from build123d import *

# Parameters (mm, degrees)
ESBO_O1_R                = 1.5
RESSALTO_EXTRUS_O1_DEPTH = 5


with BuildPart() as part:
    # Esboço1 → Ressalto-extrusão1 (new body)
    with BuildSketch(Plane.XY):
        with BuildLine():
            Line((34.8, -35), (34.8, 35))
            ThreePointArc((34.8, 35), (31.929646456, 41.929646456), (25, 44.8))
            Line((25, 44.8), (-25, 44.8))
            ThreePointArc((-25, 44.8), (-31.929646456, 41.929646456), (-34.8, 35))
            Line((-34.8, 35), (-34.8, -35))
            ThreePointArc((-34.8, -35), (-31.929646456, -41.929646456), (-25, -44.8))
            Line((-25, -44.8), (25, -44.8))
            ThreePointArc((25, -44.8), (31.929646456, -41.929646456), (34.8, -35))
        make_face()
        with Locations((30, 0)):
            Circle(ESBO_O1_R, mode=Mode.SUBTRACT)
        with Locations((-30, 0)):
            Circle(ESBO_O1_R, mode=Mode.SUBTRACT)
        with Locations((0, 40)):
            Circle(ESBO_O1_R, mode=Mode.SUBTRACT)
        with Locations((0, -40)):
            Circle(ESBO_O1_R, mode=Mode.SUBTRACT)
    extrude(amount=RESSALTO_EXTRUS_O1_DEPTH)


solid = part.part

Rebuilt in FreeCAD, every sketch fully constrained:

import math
import FreeCAD as App
import Part
import Sketcher
Q = App.Units.Quantity

doc = App.newDocument("Part")
body = doc.addObject("PartDesign::Body", "Body")

sketch1 = body.newObject("Sketcher::SketchObject", "Sketch")
sketch1.AttachmentSupport = (doc.getObject("XY_Plane"), [""])
sketch1.MapMode = "FlatFace"
sketch1.addGeometry([
    Part.LineSegment(App.Vector(34.8, -35, 0), App.Vector(34.8, 35, 0)),
    Part.ArcOfCircle(Part.Circle(App.Vector(25, 35, 0), App.Vector(0, 0, 1), 9.8), math.radians(0), math.radians(90)),
    Part.LineSegment(App.Vector(25, 44.8, 0), App.Vector(-25, 44.8, 0)),
    Part.ArcOfCircle(Part.Circle(App.Vector(-25, 35, 0), App.Vector(0, 0, 1), 9.8), math.radians(90), math.radians(180)),
    Part.LineSegment(App.Vector(-34.8, 35, 0), App.Vector(-34.8, -35, 0)),
    Part.ArcOfCircle(Part.Circle(App.Vector(-25, -35, 0), App.Vector(0, 0, 1), 9.8), math.radians(180), math.radians(270)),
    Part.LineSegment(App.Vector(-25, -44.8, 0), App.Vector(25, -44.8, 0)),
    Part.ArcOfCircle(Part.Circle(App.Vector(25, -35, 0), App.Vector(0, 0, 1), 9.8), math.radians(-90), math.radians(0)),
    Part.Circle(App.Vector(0, -40, 0), App.Vector(0, 0, 1), 1.5),
    Part.Circle(App.Vector(-30, 0, 0), App.Vector(0, 0, 1), 1.5),
    Part.Circle(App.Vector(30, 0, 0), App.Vector(0, 0, 1), 1.5),
    Part.Circle(App.Vector(0, 40, 0), App.Vector(0, 0, 1), 1.5),
], False)
sketch1.addConstraint([
    Sketcher.Constraint("Tangent", 0, 2, 1, 1),
    Sketcher.Constraint("Tangent", 1, 2, 2, 1),
    Sketcher.Constraint("Tangent", 2, 2, 3, 1),
    Sketcher.Constraint("Tangent", 3, 2, 4, 1),
    Sketcher.Constraint("Tangent", 4, 2, 5, 1),
    Sketcher.Constraint("Tangent", 5, 2, 6, 1),
    Sketcher.Constraint("Tangent", 6, 2, 7, 1),
    Sketcher.Constraint("Tangent", 7, 2, 0, 1),
    Sketcher.Constraint("Vertical", 0),
    Sketcher.Constraint("Horizontal", 2),
    Sketcher.Constraint("Vertical", 4),
    Sketcher.Constraint("Horizontal", 6),
    Sketcher.Constraint("Equal", 1, 3),
    Sketcher.Constraint("Equal", 3, 5),
    Sketcher.Constraint("Equal", 5, 7),
    Sketcher.Constraint("Equal", 8, 9),
    Sketcher.Constraint("Equal", 9, 10),
    Sketcher.Constraint("Equal", 10, 11),
    Sketcher.Constraint("Symmetric", 1, 3, 5, 3, -1, 1),
    Sketcher.Constraint("Symmetric", 9, 3, 10, 3, -1, 1),
    Sketcher.Constraint("Symmetric", 8, 3, 11, 3, -1, 1),
    Sketcher.Constraint("PointOnObject", 8, 3, -2),
    Sketcher.Constraint("PointOnObject", 9, 3, -1),
    Sketcher.Constraint("Diameter", 8, Q("3 mm")),
    Sketcher.Constraint("Radius", 1, Q("9.8 mm")),
    Sketcher.Constraint("DistanceX", 2, 2, 2, 1, Q("50 mm")),
    Sketcher.Constraint("DistanceY", 0, 1, 0, 2, Q("70 mm")),
    Sketcher.Constraint("DistanceY", 8, 3, -1, 1, Q("40 mm")),
    Sketcher.Constraint("DistanceX", 9, 3, -1, 1, Q("30 mm")),
])
pad1 = body.newObject("PartDesign::Pad", "Pad")
pad1.Profile = sketch1
pad1.Length = 5

doc.recompute()
